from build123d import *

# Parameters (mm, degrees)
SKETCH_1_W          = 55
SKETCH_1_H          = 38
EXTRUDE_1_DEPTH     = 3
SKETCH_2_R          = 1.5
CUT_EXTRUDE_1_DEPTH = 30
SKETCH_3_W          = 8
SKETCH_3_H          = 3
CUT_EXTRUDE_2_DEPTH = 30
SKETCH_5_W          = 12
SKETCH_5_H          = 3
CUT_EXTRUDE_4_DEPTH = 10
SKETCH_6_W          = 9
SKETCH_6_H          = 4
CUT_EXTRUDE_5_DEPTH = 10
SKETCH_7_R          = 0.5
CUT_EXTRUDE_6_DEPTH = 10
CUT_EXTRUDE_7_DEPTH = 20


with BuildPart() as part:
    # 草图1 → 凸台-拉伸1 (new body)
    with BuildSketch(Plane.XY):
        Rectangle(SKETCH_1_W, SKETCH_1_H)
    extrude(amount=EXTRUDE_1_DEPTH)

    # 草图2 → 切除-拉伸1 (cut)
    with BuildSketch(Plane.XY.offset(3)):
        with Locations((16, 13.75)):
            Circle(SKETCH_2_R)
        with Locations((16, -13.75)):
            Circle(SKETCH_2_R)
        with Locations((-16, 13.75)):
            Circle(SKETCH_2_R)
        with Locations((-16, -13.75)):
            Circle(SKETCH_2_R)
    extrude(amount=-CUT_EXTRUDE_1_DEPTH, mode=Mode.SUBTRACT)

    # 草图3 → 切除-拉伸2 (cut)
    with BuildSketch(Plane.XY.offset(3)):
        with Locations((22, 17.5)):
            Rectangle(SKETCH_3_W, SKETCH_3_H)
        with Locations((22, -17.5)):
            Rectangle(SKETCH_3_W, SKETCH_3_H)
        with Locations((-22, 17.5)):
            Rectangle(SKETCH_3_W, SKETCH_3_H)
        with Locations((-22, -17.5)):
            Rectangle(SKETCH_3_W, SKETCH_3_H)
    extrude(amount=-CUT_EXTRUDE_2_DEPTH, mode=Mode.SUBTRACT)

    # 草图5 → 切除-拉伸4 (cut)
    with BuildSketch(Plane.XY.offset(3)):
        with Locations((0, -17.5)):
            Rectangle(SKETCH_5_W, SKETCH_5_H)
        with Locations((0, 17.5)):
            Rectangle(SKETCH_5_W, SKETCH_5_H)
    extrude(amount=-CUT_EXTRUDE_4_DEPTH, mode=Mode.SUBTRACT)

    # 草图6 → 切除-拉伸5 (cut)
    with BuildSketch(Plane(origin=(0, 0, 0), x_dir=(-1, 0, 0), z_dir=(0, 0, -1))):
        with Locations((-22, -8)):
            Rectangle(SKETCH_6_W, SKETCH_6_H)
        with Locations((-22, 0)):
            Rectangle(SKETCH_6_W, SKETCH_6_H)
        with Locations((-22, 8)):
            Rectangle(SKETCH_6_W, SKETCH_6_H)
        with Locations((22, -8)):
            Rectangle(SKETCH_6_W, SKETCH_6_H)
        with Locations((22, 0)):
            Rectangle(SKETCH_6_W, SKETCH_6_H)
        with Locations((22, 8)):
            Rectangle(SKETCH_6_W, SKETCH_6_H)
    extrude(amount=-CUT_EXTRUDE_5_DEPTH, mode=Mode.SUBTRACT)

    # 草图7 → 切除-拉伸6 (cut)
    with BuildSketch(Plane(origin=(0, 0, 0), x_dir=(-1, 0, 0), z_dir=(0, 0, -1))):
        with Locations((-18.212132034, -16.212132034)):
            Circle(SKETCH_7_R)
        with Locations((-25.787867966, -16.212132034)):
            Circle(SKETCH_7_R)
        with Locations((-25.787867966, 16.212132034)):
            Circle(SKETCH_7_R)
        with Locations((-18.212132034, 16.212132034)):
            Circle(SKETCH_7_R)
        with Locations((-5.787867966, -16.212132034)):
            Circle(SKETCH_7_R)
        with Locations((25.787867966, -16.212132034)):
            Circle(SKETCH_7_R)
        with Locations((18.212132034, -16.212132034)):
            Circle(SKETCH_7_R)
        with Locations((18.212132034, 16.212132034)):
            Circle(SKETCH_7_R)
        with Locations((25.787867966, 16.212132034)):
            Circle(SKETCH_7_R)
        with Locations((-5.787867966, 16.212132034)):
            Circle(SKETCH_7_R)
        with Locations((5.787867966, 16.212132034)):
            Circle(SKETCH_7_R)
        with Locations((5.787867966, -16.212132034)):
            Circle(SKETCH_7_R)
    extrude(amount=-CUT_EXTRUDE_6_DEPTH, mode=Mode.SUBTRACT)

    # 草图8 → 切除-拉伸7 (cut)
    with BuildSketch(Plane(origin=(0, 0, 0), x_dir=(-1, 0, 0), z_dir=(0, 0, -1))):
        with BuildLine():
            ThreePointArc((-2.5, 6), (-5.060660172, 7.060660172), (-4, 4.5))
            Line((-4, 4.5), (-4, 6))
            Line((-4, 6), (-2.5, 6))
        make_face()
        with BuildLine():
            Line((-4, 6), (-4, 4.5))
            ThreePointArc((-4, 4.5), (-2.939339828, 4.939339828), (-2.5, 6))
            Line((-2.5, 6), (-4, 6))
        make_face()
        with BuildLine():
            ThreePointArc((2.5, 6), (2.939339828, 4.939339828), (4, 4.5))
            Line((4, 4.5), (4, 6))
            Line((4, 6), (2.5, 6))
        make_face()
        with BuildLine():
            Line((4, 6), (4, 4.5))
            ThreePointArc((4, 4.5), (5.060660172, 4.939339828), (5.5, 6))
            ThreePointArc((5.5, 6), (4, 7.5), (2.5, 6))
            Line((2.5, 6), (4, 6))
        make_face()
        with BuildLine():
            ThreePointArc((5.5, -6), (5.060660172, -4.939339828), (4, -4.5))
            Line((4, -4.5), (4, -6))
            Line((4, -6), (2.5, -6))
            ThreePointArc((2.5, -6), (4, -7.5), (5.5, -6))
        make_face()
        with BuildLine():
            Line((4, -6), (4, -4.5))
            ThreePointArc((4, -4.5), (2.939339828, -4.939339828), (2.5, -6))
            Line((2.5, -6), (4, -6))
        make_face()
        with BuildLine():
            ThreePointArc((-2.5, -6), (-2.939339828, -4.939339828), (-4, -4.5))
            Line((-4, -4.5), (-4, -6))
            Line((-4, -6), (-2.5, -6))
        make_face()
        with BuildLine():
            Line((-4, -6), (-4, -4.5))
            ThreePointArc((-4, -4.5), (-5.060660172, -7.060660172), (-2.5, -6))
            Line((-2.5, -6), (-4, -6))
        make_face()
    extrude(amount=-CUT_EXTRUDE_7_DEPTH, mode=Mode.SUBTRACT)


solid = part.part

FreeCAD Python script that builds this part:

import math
import FreeCAD as App
import Part
import Sketcher
from FreeCAD import Vector

doc = App.newDocument("Part")
body = doc.addObject("PartDesign::Body", "Body")

# Sketch on XY plane
sketch1 = body.newObject("Sketcher::SketchObject", "Sketch")
sketch1.AttachmentSupport = (doc.getObject("XY_Plane"), [""])
sketch1.MapMode = "FlatFace"
sketch1.addGeometry(Part.LineSegment(Vector(-28, 19, 0), Vector(-28, -19, 0)), False)
sketch1.addGeometry(Part.LineSegment(Vector(-28, -19, 0), Vector(28, -19, 0)), False)
sketch1.addGeometry(Part.LineSegment(Vector(28, -19, 0), Vector(28, 19, 0)), False)
sketch1.addGeometry(Part.LineSegment(Vector(28, 19, 0), Vector(-28, 19, 0)), False)
sketch1.addConstraint(Sketcher.Constraint("Coincident", 0, 2, 1, 1))
sketch1.addConstraint(Sketcher.Constraint("Coincident", 1, 2, 2, 1))
sketch1.addConstraint(Sketcher.Constraint("Coincident", 2, 2, 3, 1))
sketch1.addConstraint(Sketcher.Constraint("Coincident", 3, 2, 0, 1))
sketch1.addConstraint(Sketcher.Constraint("Vertical", 0))
sketch1.addConstraint(Sketcher.Constraint("Horizontal", 1))
sketch1.addConstraint(Sketcher.Constraint("Vertical", 2))
sketch1.addConstraint(Sketcher.Constraint("Horizontal", 3))
sketch1.addConstraint(Sketcher.Constraint("Symmetric", 0, 2, 2, 2, -1, 1))
sketch1.addConstraint(Sketcher.Constraint("DistanceX", 1, 1, 1, 2, 55.0))
sketch1.addConstraint(Sketcher.Constraint("DistanceY", 0, 2, 0, 1, 38.0))
pad1 = body.newObject("PartDesign::Pad", "Pad")
pad1.Profile = sketch1
pad1.Length = 3

# Sketch on XY plane
sketch2 = body.newObject("Sketcher::SketchObject", "Sketch001")
sketch2.AttachmentSupport = (doc.getObject("XY_Plane"), [""])
sketch2.MapMode = "FlatFace"
sketch2.AttachmentOffset = App.Placement(Vector(0, 0, 3), App.Rotation())
sketch2.addGeometry(Part.Circle(Vector(16, 13.8, 0), Vector(0, 0, 1), 1.5), False)
sketch2.addGeometry(Part.Circle(Vector(16, -13.8, 0), Vector(0, 0, 1), 1.5), False)
sketch2.addGeometry(Part.Circle(Vector(-16, 13.8, 0), Vector(0, 0, 1), 1.5), False)
sketch2.addGeometry(Part.Circle(Vector(-16, -13.8, 0), Vector(0, 0, 1), 1.5), False)
sketch2.addConstraint(Sketcher.Constraint("Equal", 0, 1))
sketch2.addConstraint(Sketcher.Constraint("Equal", 1, 2))
sketch2.addConstraint(Sketcher.Constraint("Equal", 2, 3))
sketch2.addConstraint(Sketcher.Constraint("Symmetric", 1, 3, 2, 3, -1, 1))
sketch2.addConstraint(Sketcher.Constraint("Symmetric", 0, 3, 3, 3, -1, 1))
sketch2.addConstraint(Sketcher.Constraint("Symmetric", 0, 3, 2, 3, -2))
sketch2.addConstraint(Sketcher.Constraint("Diameter", 0, 3.0))
sketch2.addConstraint(Sketcher.Constraint("DistanceX", -1, 1, 0, 3, 16.0))
sketch2.addConstraint(Sketcher.Constraint("DistanceY", 1, 3, 0, 3, 27.5))
pocket1 = body.newObject("PartDesign::Pocket", "Pocket")
pocket1.Profile = sketch2
pocket1.Length = 30

# Sketch on XY plane
sketch3 = body.newObject("Sketcher::SketchObject", "Sketch002")
sketch3.AttachmentSupport = (doc.getObject("XY_Plane"), [""])
sketch3.MapMode = "FlatFace"
sketch3.AttachmentOffset = App.Placement(Vector(0, 0, 3), App.Rotation())
sketch3.addGeometry(Part.LineSegment(Vector(18, 19, 0), Vector(18, 16, 0)), False)
sketch3.addGeometry(Part.LineSegment(Vector(18, 16, 0), Vector(26, 16, 0)), False)
sketch3.addGeometry(Part.LineSegment(Vector(26, 16, 0), Vector(26, 19, 0)), False)
sketch3.addGeometry(Part.LineSegment(Vector(26, 19, 0), Vector(18, 19, 0)), False)
sketch3.addGeometry(Part.LineSegment(Vector(18, -16, 0), Vector(18, -19, 0)), False)
sketch3.addGeometry(Part.LineSegment(Vector(18, -19, 0), Vector(26, -19, 0)), False)
sketch3.addGeometry(Part.LineSegment(Vector(26, -19, 0), Vector(26, -16, 0)), False)
sketch3.addGeometry(Part.LineSegment(Vector(26, -16, 0), Vector(18, -16, 0)), False)
sketch3.addGeometry(Part.LineSegment(Vector(-26, 19, 0), Vector(-26, 16, 0)), False)
sketch3.addGeometry(Part.LineSegment(Vector(-26, 16, 0), Vector(-18, 16, 0)), False)
sketch3.addGeometry(Part.LineSegment(Vector(-18, 16, 0), Vector(-18, 19, 0)), False)
sketch3.addGeometry(Part.LineSegment(Vector(-18, 19, 0), Vector(-26, 19, 0)), False)
sketch3.addGeometry(Part.LineSegment(Vector(-26, -16, 0), Vector(-26, -19, 0)), False)
sketch3.addGeometry(Part.LineSegment(Vector(-26, -19, 0), Vector(-18, -19, 0)), False)
sketch3.addGeometry(Part.LineSegment(Vector(-18, -19, 0), Vector(-18, -16, 0)), False)
sketch3.addGeometry(Part.LineSegment(Vector(-18, -16, 0), Vector(-26, -16, 0)), False)
sketch3.addConstraint(Sketcher.Constraint("Coincident", 0, 2, 1, 1))
sketch3.addConstraint(Sketcher.Constraint("Coincident", 1, 2, 2, 1))
sketch3.addConstraint(Sketcher.Constraint("Coincident", 2, 2, 3, 1))
sketch3.addConstraint(Sketcher.Constraint("Coincident", 3, 2, 0, 1))
sketch3.addConstraint(Sketcher.Constraint("Coincident", 4, 2, 5, 1))
sketch3.addConstraint(Sketcher.Constraint("Coincident", 5, 2, 6, 1))
sketch3.addConstraint(Sketcher.Constraint("Coincident", 6, 2, 7, 1))
sketch3.addConstraint(Sketcher.Constraint("Coincident", 7, 2, 4, 1))
sketch3.addConstraint(Sketcher.Constraint("Coincident", 8, 2, 9, 1))
sketch3.addConstraint(Sketcher.Constraint("Coincident", 9, 2, 10, 1))
sketch3.addConstraint(Sketcher.Constraint("Coincident", 10, 2, 11, 1))
sketch3.addConstraint(Sketcher.Constraint("Coincident", 11, 2, 8, 1))
sketch3.addConstraint(Sketcher.Constraint("Coincident", 12, 2, 13, 1))
sketch3.addConstraint(Sketcher.Constraint("Coincident", 13, 2, 14, 1))
sketch3.addConstraint(Sketcher.Constraint("Coincident", 14, 2, 15, 1))
sketch3.addConstraint(Sketcher.Constraint("Coincident", 15, 2, 12, 1))
sketch3.addConstraint(Sketcher.Constraint("Vertical", 0))
sketch3.addConstraint(Sketcher.Constraint("Horizontal", 1))
sketch3.addConstraint(Sketcher.Constraint("Vertical", 2))
sketch3.addConstraint(Sketcher.Constraint("Horizontal", 3))
sketch3.addConstraint(Sketcher.Constraint("Vertical", 4))
sketch3.addConstraint(Sketcher.Constraint("Horizontal", 5))
sketch3.addConstraint(Sketcher.Constraint("Vertical", 6))
sketch3.addConstraint(Sketcher.Constraint("Horizontal", 7))
sketch3.addConstraint(Sketcher.Constraint("Vertical", 8))
sketch3.addConstraint(Sketcher.Constraint("Horizontal", 9))
sketch3.addConstraint(Sketcher.Constraint("Vertical", 10))
sketch3.addConstraint(Sketcher.Constraint("Horizontal", 11))
sketch3.addConstraint(Sketcher.Constraint("Vertical", 12))
sketch3.addConstraint(Sketcher.Constraint("Horizontal", 13))
sketch3.addConstraint(Sketcher.Constraint("Vertical", 14))
sketch3.addConstraint(Sketcher.Constraint("Horizontal", 15))
sketch3.addConstraint(Sketcher.Constraint("Symmetric", 6, 2, 8, 2, -1, 1))
sketch3.addConstraint(Sketcher.Constraint("Symmetric", 4, 2, 10, 2, -1, 1))
sketch3.addConstraint(Sketcher.Constraint("Symmetric", 2, 2, 12, 2, -1, 1))
sketch3.addConstraint(Sketcher.Constraint("Symmetric", 0, 2, 14, 2, -1, 1))
sketch3.addConstraint(Sketcher.Constraint("Symmetric", 1, 2, 8, 2, -2))
sketch3.addConstraint(Sketcher.Constraint("Symmetric", 3, 2, 10, 2, -2))
sketch3.addConstraint(Sketcher.Constraint("DistanceX", 1, 1, 1, 2, 8.0))
sketch3.addConstraint(Sketcher.Constraint("DistanceY", 0, 2, 0, 1, 3.0))
sketch3.addConstraint(Sketcher.Constraint("DistanceX", -1, 1, 0, 2, 18.0))
sketch3.addConstraint(Sketcher.Constraint("DistanceY", -1, 1, 0, 2, 16.0))
pocket2 = body.newObject("PartDesign::Pocket", "Pocket001")
pocket2.Profile = sketch3
pocket2.Length = 30

# Sketch on XY plane
sketch4 = body.newObject("Sketcher::SketchObject", "Sketch003")
sketch4.AttachmentSupport = (doc.getObject("XY_Plane"), [""])
sketch4.MapMode = "FlatFace"
sketch4.AttachmentOffset = App.Placement(Vector(0, 0, 3), App.Rotation())
sketch4.addGeometry(Part.LineSegment(Vector(-6, -16, 0), Vector(-6, -19, 0)), False)
sketch4.addGeometry(Part.LineSegment(Vector(-6, -19, 0), Vector(6, -19, 0)), False)
sketch4.addGeometry(Part.LineSegment(Vector(6, -19, 0), Vector(6, -16, 0)), False)
sketch4.addGeometry(Part.LineSegment(Vector(6, -16, 0), Vector(-6, -16, 0)), False)
sketch4.addGeometry(Part.LineSegment(Vector(-6, 19, 0), Vector(-6, 16, 0)), False)
sketch4.addGeometry(Part.LineSegment(Vector(-6, 16, 0), Vector(6, 16, 0)), False)
sketch4.addGeometry(Part.LineSegment(Vector(6, 16, 0), Vector(6, 19, 0)), False)
sketch4.addGeometry(Part.LineSegment(Vector(6, 19, 0), Vector(-6, 19, 0)), False)
sketch4.addConstraint(Sketcher.Constraint("Coincident", 0, 2, 1, 1))
sketch4.addConstraint(Sketcher.Constraint("Coincident", 1, 2, 2, 1))
sketch4.addConstraint(Sketcher.Constraint("Coincident", 2, 2, 3, 1))
sketch4.addConstraint(Sketcher.Constraint("Coincident", 3, 2, 0, 1))
sketch4.addConstraint(Sketcher.Constraint("Coincident", 4, 2, 5, 1))
sketch4.addConstraint(Sketcher.Constraint("Coincident", 5, 2, 6, 1))
sketch4.addConstraint(Sketcher.Constraint("Coincident", 6, 2, 7, 1))
sketch4.addConstraint(Sketcher.Constraint("Coincident", 7, 2, 4, 1))
sketch4.addConstraint(Sketcher.Constraint("Vertical", 0))
sketch4.addConstraint(Sketcher.Constraint("Horizontal", 1))
sketch4.addConstraint(Sketcher.Constraint("Vertical", 2))
sketch4.addConstraint(Sketcher.Constraint("Horizontal", 3))
sketch4.addConstraint(Sketcher.Constraint("Vertical", 4))
sketch4.addConstraint(Sketcher.Constraint("Horizontal", 5))
sketch4.addConstraint(Sketcher.Constraint("Vertical", 6))
sketch4.addConstraint(Sketcher.Constraint("Horizontal", 7))
sketch4.addConstraint(Sketcher.Constraint("Symmetric", 2, 2, 4, 2, -1, 1))
sketch4.addConstraint(Sketcher.Constraint("Symmetric", 0, 2, 6, 2, -1, 1))
sketch4.addConstraint(Sketcher.Constraint("Vertical", 3, 2, 4, 2))
sketch4.addConstraint(Sketcher.Constraint("DistanceX", 1, 1, 1, 2, 12.0))
sketch4.addConstraint(Sketcher.Constraint("DistanceY", 0, 2, 0, 1, 3.0))
sketch4.addConstraint(Sketcher.Constraint("DistanceY", 0, 2, -1, 1, 19.0))
pocket3 = body.newObject("PartDesign::Pocket", "Pocket002")
pocket3.Profile = sketch4
pocket3.Length = 10

# Sketch on XY plane
sketch5 = body.newObject("Sketcher::SketchObject", "Sketch004")
sketch5.AttachmentSupport = (doc.getObject("XY_Plane"), [""])
sketch5.MapMode = "FlatFace"
sketch5.addGeometry(Part.LineSegment(Vector(26.5, -6, 0), Vector(26.5, -10, 0)), False)
sketch5.addGeometry(Part.LineSegment(Vector(26.5, -10, 0), Vector(17.5, -10, 0)), False)
sketch5.addGeometry(Part.LineSegment(Vector(17.5, -10, 0), Vector(17.5, -6, 0)), False)
sketch5.addGeometry(Part.LineSegment(Vector(17.5, -6, 0), Vector(26.5, -6, 0)), False)
sketch5.addGeometry(Part.LineSegment(Vector(26.5, 2, 0), Vector(26.5, -2, 0)), False)
sketch5.addGeometry(Part.LineSegment(Vector(26.5, -2, 0), Vector(17.5, -2, 0)), False)
sketch5.addGeometry(Part.LineSegment(Vector(17.5, -2, 0), Vector(17.5, 2, 0)), False)
sketch5.addGeometry(Part.LineSegment(Vector(17.5, 2, 0), Vector(26.5, 2, 0)), False)
sketch5.addGeometry(Part.LineSegment(Vector(26.5, 10, 0), Vector(26.5, 6, 0)), False)
sketch5.addGeometry(Part.LineSegment(Vector(26.5, 6, 0), Vector(17.5, 6, 0)), False)
sketch5.addGeometry(Part.LineSegment(Vector(17.5, 6, 0), Vector(17.5, 10, 0)), False)
sketch5.addGeometry(Part.LineSegment(Vector(17.5, 10, 0), Vector(26.5, 10, 0)), False)
sketch5.addGeometry(Part.LineSegment(Vector(-17.5, -6, 0), Vector(-17.5, -10, 0)), False)
sketch5.addGeometry(Part.LineSegment(Vector(-17.5, -10, 0), Vector(-26.5, -10, 0)), False)
sketch5.addGeometry(Part.LineSegment(Vector(-26.5, -10, 0), Vector(-26.5, -6, 0)), False)
sketch5.addGeometry(Part.LineSegment(Vector(-26.5, -6, 0), Vector(-17.5, -6, 0)), False)
sketch5.addGeometry(Part.LineSegment(Vector(-17.5, 2, 0), Vector(-17.5, -2, 0)), False)
sketch5.addGeometry(Part.LineSegment(Vector(-17.5, -2, 0), Vector(-26.5, -2, 0)), False)
sketch5.addGeometry(Part.LineSegment(Vector(-26.5, -2, 0), Vector(-26.5, 2, 0)), False)
sketch5.addGeometry(Part.LineSegment(Vector(-26.5, 2, 0), Vector(-17.5, 2, 0)), False)
sketch5.addGeometry(Part.LineSegment(Vector(-17.5, 10, 0), Vector(-17.5, 6, 0)), False)
sketch5.addGeometry(Part.LineSegment(Vector(-17.5, 6, 0), Vector(-26.5, 6, 0)), False)
sketch5.addGeometry(Part.LineSegment(Vector(-26.5, 6, 0), Vector(-26.5, 10, 0)), False)
sketch5.addGeometry(Part.LineSegment(Vector(-26.5, 10, 0), Vector(-17.5, 10, 0)), False)
sketch5.addConstraint(Sketcher.Constraint("Coincident", 0, 2, 1, 1))
sketch5.addConstraint(Sketcher.Constraint("Coincident", 1, 2, 2, 1))
sketch5.addConstraint(Sketcher.Constraint("Coincident", 2, 2, 3, 1))
sketch5.addConstraint(Sketcher.Constraint("Coincident", 3, 2, 0, 1))
sketch5.addConstraint(Sketcher.Constraint("Coincident", 4, 2, 5, 1))
sketch5.addConstraint(Sketcher.Constraint("Coincident", 5, 2, 6, 1))
sketch5.addConstraint(Sketcher.Constraint("Coincident", 6, 2, 7, 1))
sketch5.addConstraint(Sketcher.Constraint("Coincident", 7, 2, 4, 1))
sketch5.addConstraint(Sketcher.Constraint("Coincident", 8, 2, 9, 1))
sketch5.addConstraint(Sketcher.Constraint("Coincident", 9, 2, 10, 1))
sketch5.addConstraint(Sketcher.Constraint("Coincident", 10, 2, 11, 1))
sketch5.addConstraint(Sketcher.Constraint("Coincident", 11, 2, 8, 1))
sketch5.addConstraint(Sketcher.Constraint("Coincident", 12, 2, 13, 1))
sketch5.addConstraint(Sketcher.Constraint("Coincident", 13, 2, 14, 1))
sketch5.addConstraint(Sketcher.Constraint("Coincident", 14, 2, 15, 1))
sketch5.addConstraint(Sketcher.Constraint("Coincident", 15, 2, 12, 1))
sketch5.addConstraint(Sketcher.Constraint("Coincident", 16, 2, 17, 1))
sketch5.addConstraint(Sketcher.Constraint("Coincident", 17, 2, 18, 1))
sketch5.addConstraint(Sketcher.Constraint("Coincident", 18, 2, 19, 1))
sketch5.addConstraint(Sketcher.Constraint("Coincident", 19, 2, 16, 1))
sketch5.addConstraint(Sketcher.Constraint("Coincident", 20, 2, 21, 1))
sketch5.addConstraint(Sketcher.Constraint("Coincident", 21, 2, 22, 1))
sketch5.addConstraint(Sketcher.Constraint("Coincident", 22, 2, 23, 1))
sketch5.addConstraint(Sketcher.Constraint("Coincident", 23, 2, 20, 1))
sketch5.addConstraint(Sketcher.Constraint("Vertical", 0))
sketch5.addConstraint(Sketcher.Constraint("Horizontal", 1))
sketch5.addConstraint(Sketcher.Constraint("Vertical", 2))
sketch5.addConstraint(Sketcher.Constraint("Horizontal", 3))
sketch5.addConstraint(Sketcher.Constraint("Vertical", 4))
sketch5.addConstraint(Sketcher.Constraint("Horizontal", 5))
sketch5.addConstraint(Sketcher.Constraint("Vertical", 6))
sketch5.addConstraint(Sketcher.Constraint("Horizontal", 7))
sketch5.addConstraint(Sketcher.Constraint("Vertical", 8))
sketch5.addConstraint(Sketcher.Constraint("Horizontal", 9))
sketch5.addConstraint(Sketcher.Constraint("Vertical", 10))
sketch5.addConstraint(Sketcher.Constraint("Horizontal", 11))
sketch5.addConstraint(Sketcher.Constraint("Vertical", 12))
sketch5.addConstraint(Sketcher.Constraint("Horizontal", 13))
sketch5.addConstraint(Sketcher.Constraint("Vertical", 14))
sketch5.addConstraint(Sketcher.Constraint("Horizontal", 15))
sketch5.addConstraint(Sketcher.Constraint("Vertical", 16))
sketch5.addConstraint(Sketcher.Constraint("Horizontal", 17))
sketch5.addConstraint(Sketcher.Constraint("Vertical", 18))
sketch5.addConstraint(Sketcher.Constraint("Horizontal", 19))
sketch5.addConstraint(Sketcher.Constraint("Vertical", 20))
sketch5.addConstraint(Sketcher.Constraint("Horizontal", 21))
sketch5.addConstraint(Sketcher.Constraint("Vertical", 22))
sketch5.addConstraint(Sketcher.Constraint("Horizontal", 23))
sketch5.addConstraint(Sketcher.Constraint("Symmetric", 10, 2, 12, 2, -1, 1))
sketch5.addConstraint(Sketcher.Constraint("Symmetric", 8, 2, 14, 2, -1, 1))
sketch5.addConstraint(Sketcher.Constraint("Symmetric", 6, 2, 16, 2, -1, 1))
sketch5.addConstraint(Sketcher.Constraint("Symmetric", 4, 2, 18, 2, -1, 1))
sketch5.addConstraint(Sketcher.Constraint("Symmetric", 2, 2, 20, 2, -1, 1))
sketch5.addConstraint(Sketcher.Constraint("Symmetric", 0, 2, 22, 2, -1, 1))
sketch5.addConstraint(Sketcher.Constraint("Symmetric", 1, 2, 12, 2, -2))
sketch5.addConstraint(Sketcher.Constraint("Symmetric", 3, 2, 14, 2, -2))
sketch5.addConstraint(Sketcher.Constraint("Horizontal", 5, 2, 16, 2))
sketch5.addConstraint(Sketcher.Constraint("Vertical", 3, 2, 4, 2))
sketch5.addConstraint(Sketcher.Constraint("Vertical", 2, 2, 5, 2))
sketch5.addConstraint(Sketcher.Constraint("Equal", 2, 4))
sketch5.addConstraint(Sketcher.Constraint("DistanceX", 1, 2, 1, 1, 9.0))
sketch5.addConstraint(Sketcher.Constraint("DistanceY", 0, 2, 0, 1, 4.0))
sketch5.addConstraint(Sketcher.Constraint("DistanceY", 0, 2, -1, 1, 10.0))
sketch5.addConstraint(Sketcher.Constraint("DistanceX", 12, 2, 1, 2, 35.0))
pocket4 = body.newObject("PartDesign::Pocket", "Pocket003")
pocket4.Profile = sketch5
pocket4.Length = 10
pocket4.Reversed = True

# Sketch on XY plane
sketch6 = body.newObject("Sketcher::SketchObject", "Sketch005")
sketch6.AttachmentSupport = (doc.getObject("XY_Plane"), [""])
sketch6.MapMode = "FlatFace"
sketch6.addGeometry(Part.Circle(Vector(18.2, -16.2, 0), Vector(0, 0, 1), 0.5), False)
sketch6.addGeometry(Part.Circle(Vector(25.8, -16.2, 0), Vector(0, 0, 1), 0.5), False)
sketch6.addGeometry(Part.Circle(Vector(25.8, 16.2, 0), Vector(0, 0, 1), 0.5), False)
sketch6.addGeometry(Part.Circle(Vector(18.2, 16.2, 0), Vector(0, 0, 1), 0.5), False)
sketch6.addGeometry(Part.Circle(Vector(5.8, -16.2, 0), Vector(0, 0, 1), 0.5), False)
sketch6.addGeometry(Part.Circle(Vector(-25.8, -16.2, 0), Vector(0, 0, 1), 0.5), False)
sketch6.addGeometry(Part.Circle(Vector(-18.2, -16.2, 0), Vector(0, 0, 1), 0.5), False)
sketch6.addGeometry(Part.Circle(Vector(-18.2, 16.2, 0), Vector(0, 0, 1), 0.5), False)
sketch6.addGeometry(Part.Circle(Vector(-25.8, 16.2, 0), Vector(0, 0, 1), 0.5), False)
sketch6.addGeometry(Part.Circle(Vector(5.8, 16.2, 0), Vector(0, 0, 1), 0.5), False)
sketch6.addGeometry(Part.Circle(Vector(-5.8, 16.2, 0), Vector(0, 0, 1), 0.5), False)
sketch6.addGeometry(Part.Circle(Vector(-5.8, -16.2, 0), Vector(0, 0, 1), 0.5), False)
sketch6.addConstraint(Sketcher.Constraint("Equal", 0, 1))
sketch6.addConstraint(Sketcher.Constraint("Equal", 1, 2))
sketch6.addConstraint(Sketcher.Constraint("Equal", 2, 3))
sketch6.addConstraint(Sketcher.Constraint("Equal", 3, 4))
sketch6.addConstraint(Sketcher.Constraint("Equal", 4, 5))
sketch6.addConstraint(Sketcher.Constraint("Equal", 5, 6))
sketch6.addConstraint(Sketcher.Constraint("Equal", 6, 7))
sketch6.addConstraint(Sketcher.Constraint("Equal", 7, 8))
sketch6.addConstraint(Sketcher.Constraint("Equal", 8, 9))
sketch6.addConstraint(Sketcher.Constraint("Equal", 9, 10))
sketch6.addConstraint(Sketcher.Constraint("Equal", 10, 11))
sketch6.addConstraint(Sketcher.Constraint("Symmetric", 2, 3, 5, 3, -1, 1))
sketch6.addConstraint(Sketcher.Constraint("Symmetric", 3, 3, 6, 3, -1, 1))
sketch6.addConstraint(Sketcher.Constraint("Symmetric", 0, 3, 7, 3, -1, 1))
sketch6.addConstraint(Sketcher.Constraint("Symmetric", 1, 3, 8, 3, -1, 1))
sketch6.addConstraint(Sketcher.Constraint("Symmetric", 4, 3, 10, 3, -1, 1))
sketch6.addConstraint(Sketcher.Constraint("Symmetric", 9, 3, 11, 3, -1, 1))
sketch6.addConstraint(Sketcher.Constraint("Symmetric", 1, 3, 5, 3, -2))
sketch6.addConstraint(Sketcher.Constraint("Symmetric", 0, 3, 6, 3, -2))
sketch6.addConstraint(Sketcher.Constraint("Symmetric", 9, 3, 10, 3, -2))
sketch6.addConstraint(Sketcher.Constraint("Horizontal", 0, 3, 1, 3))
sketch6.addConstraint(Sketcher.Constraint("Horizontal", 1, 3, 4, 3))
sketch6.addConstraint(Sketcher.Constraint("Diameter", 0, 1.0))
sketch6.addConstraint(Sketcher.Constraint("DistanceX", 4, 3, 1, 3, 20.0))
sketch6.addConstraint(Sketcher.Constraint("DistanceX", 5, 3, 0, 3, 44.0))
sketch6.addConstraint(Sketcher.Constraint("DistanceX", -1, 1, 0, 3, 18.212132))
sketch6.addConstraint(Sketcher.Constraint("DistanceY", 0, 3, -1, 1, 16.212132))
pocket5 = body.newObject("PartDesign::Pocket", "Pocket004")
pocket5.Profile = sketch6
pocket5.Length = 10
pocket5.Reversed = True

# Sketch on XY plane
sketch7 = body.newObject("Sketcher::SketchObject", "Sketch006")
sketch7.AttachmentSupport = (doc.getObject("XY_Plane"), [""])
sketch7.MapMode = "FlatFace"
sketch7.addGeometry(Part.ArcOfCircle(Part.Circle(Vector(4, 6, 0), Vector(0, 0, 1), 1.5), math.radians(-90), math.radians(180)), False)
sketch7.addGeometry(Part.ArcOfCircle(Part.Circle(Vector(4, 6, 0), Vector(0, 0, 1), 1.5), math.radians(180), math.radians(270)), False)
sketch7.addGeometry(Part.ArcOfCircle(Part.Circle(Vector(-4, 6, 0), Vector(0, 0, 1), 1.5), math.radians(-90), math.radians(0)), False)
sketch7.addGeometry(Part.ArcOfCircle(Part.Circle(Vector(-4, 6, 0), Vector(0, 0, 1), 1.5), math.radians(180), math.radians(270)), False)
sketch7.addGeometry(Part.ArcOfCircle(Part.Circle(Vector(-4, 6, 0), Vector(0, 0, 1), 1.5), math.radians(0), math.radians(180)), False)
sketch7.addGeometry(Part.ArcOfCircle(Part.Circle(Vector(-4, -6, 0), Vector(0, 0, 1), 1.5), math.radians(90), math.radians(180)), False)
sketch7.addGeometry(Part.ArcOfCircle(Part.Circle(Vector(-4, -6, 0), Vector(0, 0, 1), 1.5), math.radians(0), math.radians(90)), False)
sketch7.addGeometry(Part.ArcOfCircle(Part.Circle(Vector(-4, -6, 0), Vector(0, 0, 1), 1.5), math.radians(180), math.radians(360)), False)
sketch7.addGeometry(Part.ArcOfCircle(Part.Circle(Vector(4, -6, 0), Vector(0, 0, 1), 1.5), math.radians(90), math.radians(180)), False)
sketch7.addGeometry(Part.ArcOfCircle(Part.Circle(Vector(4, -6, 0), Vector(0, 0, 1), 1.5), math.radians(180), math.radians(450)), False)
sketch7.addConstraint(Sketcher.Constraint("Tangent", 0, 1, 1, 2))
sketch7.addConstraint(Sketcher.Constraint("Coincident", 1, 1, 0, 2))
sketch7.addConstraint(Sketcher.Constraint("Tangent", 2, 1, 3, 2))
sketch7.addConstraint(Sketcher.Constraint("Tangent", 3, 1, 4, 2))
sketch7.addConstraint(Sketcher.Constraint("Tangent", 4, 1, 2, 2))
sketch7.addConstraint(Sketcher.Constraint("Tangent", 5, 1, 6, 2))
sketch7.addConstraint(Sketcher.Constraint("Tangent", 6, 1, 7, 2))
sketch7.addConstraint(Sketcher.Constraint("Tangent", 7, 1, 5, 2))
sketch7.addConstraint(Sketcher.Constraint("Tangent", 8, 1, 9, 2))
sketch7.addConstraint(Sketcher.Constraint("Coincident", 9, 1, 8, 2))
sketch7.addConstraint(Sketcher.Constraint("Equal", 1, 2))
sketch7.addConstraint(Sketcher.Constraint("Equal", 4, 5))
sketch7.addConstraint(Sketcher.Constraint("Equal", 7, 8))
sketch7.addConstraint(Sketcher.Constraint("Symmetric", 0, 3, 5, 3, -1, 1))
sketch7.addConstraint(Sketcher.Constraint("Symmetric", 2, 3, 8, 3, -1, 1))
sketch7.addConstraint(Sketcher.Constraint("Symmetric", 0, 3, 2, 3, -2))
sketch7.addConstraint(Sketcher.Constraint("Horizontal", 4, 3, 1, 1))
sketch7.addConstraint(Sketcher.Constraint("Horizontal", 1, 1, 3, 1))
sketch7.addConstraint(Sketcher.Constraint("Horizontal", 3, 1, 4, 1))
sketch7.addConstraint(Sketcher.Constraint("Horizontal", 9, 3, 6, 1))
sketch7.addConstraint(Sketcher.Constraint("Horizontal", 6, 1, 7, 1))
sketch7.addConstraint(Sketcher.Constraint("Horizontal", 7, 1, 9, 1))
sketch7.addConstraint(Sketcher.Constraint("Vertical", 9, 3, 0, 1))
sketch7.addConstraint(Sketcher.Constraint("Vertical", 7, 3, 2, 1))
sketch7.addConstraint(Sketcher.Constraint("Vertical", 2, 1, 5, 1))
sketch7.addConstraint(Sketcher.Constraint("Vertical", 0, 1, 8, 1))
sketch7.addConstraint(Sketcher.Constraint("Radius", 0, 1.5))
sketch7.addConstraint(Sketcher.Constraint("DistanceX", -1, 1, 0, 3, 4.0))
sketch7.addConstraint(Sketcher.Constraint("DistanceY", -1, 1, 0, 3, 6.0))
pocket6 = body.newObject("PartDesign::Pocket", "Pocket005")
pocket6.Profile = sketch7
pocket6.Length = 20
pocket6.Reversed = True

doc.recompute()
